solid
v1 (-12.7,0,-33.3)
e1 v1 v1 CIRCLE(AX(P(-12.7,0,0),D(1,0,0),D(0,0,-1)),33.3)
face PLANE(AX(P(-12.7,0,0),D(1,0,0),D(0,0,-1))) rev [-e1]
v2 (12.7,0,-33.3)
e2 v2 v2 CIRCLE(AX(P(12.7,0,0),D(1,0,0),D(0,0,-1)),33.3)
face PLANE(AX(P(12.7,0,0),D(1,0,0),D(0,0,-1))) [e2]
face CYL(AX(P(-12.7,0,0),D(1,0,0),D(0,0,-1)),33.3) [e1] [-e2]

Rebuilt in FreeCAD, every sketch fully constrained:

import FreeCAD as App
import Part
import Sketcher

doc = App.newDocument("Part")
body = doc.addObject("PartDesign::Body", "Body")

sketch1 = body.newObject("Sketcher::SketchObject", "Sketch")
sketch1.AttachmentSupport = (doc.getObject("YZ_Plane"), [""])
sketch1.MapMode = "FlatFace"
sketch1.addGeometry(Part.Circle(App.Vector(0, 0, 0), App.Vector(0, 0, 1), 33.3), False)
sketch1.addConstraint([
    Sketcher.Constraint("Coincident", 0, 3, -1, 1),
    Sketcher.Constraint("Diameter", 0, 66.6),
])
pad1 = body.newObject("PartDesign::Pad", "Pad")
pad1.Profile = sketch1
pad1.Type = "TwoLengths"
pad1.Length = 12.7
pad1.Length2 = 12.7

doc.recompute()
